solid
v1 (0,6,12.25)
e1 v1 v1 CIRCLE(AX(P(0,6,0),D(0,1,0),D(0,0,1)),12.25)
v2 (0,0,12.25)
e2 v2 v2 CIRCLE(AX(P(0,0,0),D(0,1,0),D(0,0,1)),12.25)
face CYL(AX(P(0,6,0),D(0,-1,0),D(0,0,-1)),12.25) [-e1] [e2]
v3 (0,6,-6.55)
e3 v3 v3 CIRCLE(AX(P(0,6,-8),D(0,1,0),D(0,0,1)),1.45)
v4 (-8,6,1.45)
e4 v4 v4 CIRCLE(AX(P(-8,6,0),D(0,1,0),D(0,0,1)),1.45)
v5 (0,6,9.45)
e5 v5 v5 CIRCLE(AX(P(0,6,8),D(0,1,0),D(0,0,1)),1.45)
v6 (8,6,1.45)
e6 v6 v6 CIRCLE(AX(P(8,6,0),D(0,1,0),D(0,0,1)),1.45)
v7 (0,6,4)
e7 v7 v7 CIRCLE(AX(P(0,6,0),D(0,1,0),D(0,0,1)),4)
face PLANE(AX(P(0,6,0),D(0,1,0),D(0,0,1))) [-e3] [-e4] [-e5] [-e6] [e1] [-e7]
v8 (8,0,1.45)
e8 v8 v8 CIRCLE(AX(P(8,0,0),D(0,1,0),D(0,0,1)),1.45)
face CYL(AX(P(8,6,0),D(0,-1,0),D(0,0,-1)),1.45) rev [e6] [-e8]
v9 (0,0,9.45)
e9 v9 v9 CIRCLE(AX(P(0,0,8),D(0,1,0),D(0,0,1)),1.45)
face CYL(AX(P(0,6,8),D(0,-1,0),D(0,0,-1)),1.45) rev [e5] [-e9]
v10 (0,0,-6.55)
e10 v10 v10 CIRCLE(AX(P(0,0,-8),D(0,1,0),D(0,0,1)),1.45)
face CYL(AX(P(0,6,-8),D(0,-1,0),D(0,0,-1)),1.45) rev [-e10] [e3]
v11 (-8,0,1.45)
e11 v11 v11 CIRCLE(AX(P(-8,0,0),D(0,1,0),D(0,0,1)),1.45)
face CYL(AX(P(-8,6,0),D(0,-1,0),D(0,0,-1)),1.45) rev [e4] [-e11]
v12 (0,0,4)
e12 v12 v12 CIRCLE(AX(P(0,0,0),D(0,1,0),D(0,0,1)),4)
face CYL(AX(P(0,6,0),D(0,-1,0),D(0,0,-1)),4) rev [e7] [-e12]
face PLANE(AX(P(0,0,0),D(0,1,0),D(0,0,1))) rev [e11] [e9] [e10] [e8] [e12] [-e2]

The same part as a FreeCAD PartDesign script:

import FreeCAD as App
import Part
import Sketcher

V = App.Vector
Q = App.Units.Quantity

doc = App.newDocument("Part")
body = doc.addObject("PartDesign::Body", "Body")

# Sketch on XZ plane
sketch1 = body.newObject("Sketcher::SketchObject", "Sketch")
sketch1.AttachmentSupport = (doc.getObject("XZ_Plane"), [""])
sketch1.MapMode = "FlatFace"
sketch1.addGeometry([
    Part.Circle(V(0, 0, 0), V(0, 0, 1), 12.2),  # 0
    Part.Circle(V(0, -8, 0), V(0, 0, 1), 1.4),  # 1
    Part.Circle(V(-8, 0, 0), V(0, 0, 1), 1.4),  # 2
    Part.Circle(V(8, 0, 0), V(0, 0, 1), 1.4),  # 3
    Part.Circle(V(0, 0, 0), V(0, 0, 1), 4),  # 4
    Part.Circle(V(0, 8, 0), V(0, 0, 1), 1.4),  # 5
], False)
sketch1.addConstraint([
    Sketcher.Constraint("Coincident", 0, 3, -1, 1),
    Sketcher.Constraint("Coincident", 4, 3, -1, 1),
    Sketcher.Constraint("Equal", 1, 2),
    Sketcher.Constraint("Equal", 2, 3),
    Sketcher.Constraint("Equal", 3, 5),
    Sketcher.Constraint("Symmetric", 2, 3, 3, 3, -1, 1),
    Sketcher.Constraint("Symmetric", 1, 3, 5, 3, -1, 1),
    Sketcher.Constraint("PointOnObject", 1, 3, -2),
    Sketcher.Constraint("PointOnObject", 2, 3, -1),
    Sketcher.Constraint("Diameter", 4, Q("8 mm")),
    Sketcher.Constraint("Diameter", 0, Q("24.5 mm")),
    Sketcher.Constraint("Diameter", 1, Q("2.9 mm")),
    Sketcher.Constraint("DistanceY", 1, 3, -1, 1, Q("8 mm")),
    Sketcher.Constraint("DistanceX", 2, 3, -1, 1, Q("8 mm")),
])
pad1 = body.newObject("PartDesign::Pad", "Pad")
pad1.Profile = sketch1
pad1.Length = 6
pad1.Reversed = True

doc.recompute()
